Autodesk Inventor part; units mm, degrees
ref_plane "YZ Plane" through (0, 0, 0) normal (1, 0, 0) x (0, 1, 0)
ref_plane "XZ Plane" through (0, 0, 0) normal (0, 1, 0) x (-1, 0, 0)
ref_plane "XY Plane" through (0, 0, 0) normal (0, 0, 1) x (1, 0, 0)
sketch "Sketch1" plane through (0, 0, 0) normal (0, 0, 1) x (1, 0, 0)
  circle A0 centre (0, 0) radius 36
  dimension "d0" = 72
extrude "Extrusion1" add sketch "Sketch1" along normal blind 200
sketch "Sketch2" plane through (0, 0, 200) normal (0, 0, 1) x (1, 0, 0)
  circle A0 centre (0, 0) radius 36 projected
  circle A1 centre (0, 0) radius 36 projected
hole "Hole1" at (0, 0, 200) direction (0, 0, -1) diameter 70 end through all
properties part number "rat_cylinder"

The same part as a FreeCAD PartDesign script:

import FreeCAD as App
import Part
import Sketcher

V = App.Vector
Q = App.Units.Quantity

doc = App.newDocument("Part")
params = doc.addObject("Spreadsheet::Sheet", "Params")
for row, (alias, value) in enumerate([
    ("sketch1_diameter", "72 mm"),
    ("pad1_length", "200 mm"),
    ("sketch2_diameter", "70 mm"),
    ("hole_diameter", "70 mm"),
], start=1):
    params.set(f"A{row}", alias)
    params.set(f"B{row}", "=" + value)
    params.setAlias(f"B{row}", alias)

body = doc.addObject("PartDesign::Body", "Body")

# Sketch on XY plane
sketch1 = doc.addObject("Sketcher::SketchObject", "Sketch")
body.addObject(sketch1)
sketch1.AttachmentSupport = (doc.XY_Plane, [""])
sketch1.MapMode = "FlatFace"
sketch1.addGeometry(Part.Circle(V(0, 0, 0), V(0, 0, 1), 36), False)
sketch1.addConstraint(Sketcher.Constraint("Coincident", 0, 3, -1, 1))
sketch1.addConstraint(Sketcher.Constraint("Diameter", 0, Q("72 mm")))
sketch1.setExpression("Constraints[1]", "Params.sketch1_diameter")
pad1 = doc.addObject("PartDesign::Pad", "Pad")
body.addObject(pad1)
pad1.Profile = sketch1
pad1.setExpression("Length", "Params.pad1_length")

# Sketch on XY plane
sketch2 = doc.addObject("Sketcher::SketchObject", "Sketch001")
body.addObject(sketch2)
sketch2.AttachmentSupport = (doc.XY_Plane, [""])
sketch2.MapMode = "FlatFace"
sketch2.AttachmentOffset = App.Placement(V(0, 0, 200), App.Rotation())
sketch2.addGeometry(Part.Circle(V(0, 0, 0), V(0, 0, 1), 35), False)
sketch2.addConstraint(Sketcher.Constraint("Coincident", 0, 3, -1, 1))
sketch2.addConstraint(Sketcher.Constraint("Diameter", 0, Q("70 mm")))
sketch2.setExpression("Constraints[1]", "Params.sketch2_diameter")
doc.recompute()
hole = doc.addObject("PartDesign::Hole", "Hole")
body.addObject(hole)
hole.Profile = sketch2
hole.ThreadType = "None"
hole.setExpression("Diameter", "Params.hole_diameter")
hole.DepthType = "ThroughAll"

doc.recompute()
